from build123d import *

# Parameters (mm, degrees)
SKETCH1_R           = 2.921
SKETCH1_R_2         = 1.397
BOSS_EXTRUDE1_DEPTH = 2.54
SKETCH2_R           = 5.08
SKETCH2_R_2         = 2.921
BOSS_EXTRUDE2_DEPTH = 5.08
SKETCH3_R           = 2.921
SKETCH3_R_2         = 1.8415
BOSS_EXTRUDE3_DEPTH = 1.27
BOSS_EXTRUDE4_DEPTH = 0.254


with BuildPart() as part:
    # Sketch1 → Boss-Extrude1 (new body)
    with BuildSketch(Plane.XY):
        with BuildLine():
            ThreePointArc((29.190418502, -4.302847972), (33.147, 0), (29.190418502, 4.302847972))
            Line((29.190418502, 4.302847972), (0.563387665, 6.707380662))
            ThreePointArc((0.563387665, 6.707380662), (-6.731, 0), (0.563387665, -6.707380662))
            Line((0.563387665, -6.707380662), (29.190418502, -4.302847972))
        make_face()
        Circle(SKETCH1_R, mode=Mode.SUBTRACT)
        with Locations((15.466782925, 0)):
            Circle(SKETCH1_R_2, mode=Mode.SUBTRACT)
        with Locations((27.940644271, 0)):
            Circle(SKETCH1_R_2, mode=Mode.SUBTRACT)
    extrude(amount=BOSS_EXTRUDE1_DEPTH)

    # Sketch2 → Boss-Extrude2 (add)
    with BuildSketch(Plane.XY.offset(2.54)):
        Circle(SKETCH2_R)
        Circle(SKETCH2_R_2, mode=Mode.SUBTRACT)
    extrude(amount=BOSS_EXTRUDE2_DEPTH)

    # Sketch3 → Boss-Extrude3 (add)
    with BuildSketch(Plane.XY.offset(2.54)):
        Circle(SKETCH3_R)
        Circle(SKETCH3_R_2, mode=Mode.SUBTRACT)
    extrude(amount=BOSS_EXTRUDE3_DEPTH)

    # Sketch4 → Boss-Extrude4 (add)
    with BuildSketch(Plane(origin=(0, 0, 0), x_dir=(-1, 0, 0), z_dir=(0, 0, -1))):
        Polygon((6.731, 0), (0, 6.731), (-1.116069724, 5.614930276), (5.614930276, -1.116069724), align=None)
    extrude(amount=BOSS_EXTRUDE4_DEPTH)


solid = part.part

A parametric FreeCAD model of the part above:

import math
import FreeCAD as App
import Part
import Sketcher
Q = App.Units.Quantity

doc = App.newDocument("Part")
body = doc.addObject("PartDesign::Body", "Body")

# Sketch on XY plane
sketch1 = doc.addObject("Sketcher::SketchObject", "Sketch")
body.addObject(sketch1)
sketch1.AttachmentSupport = (doc.XY_Plane, [""])
sketch1.MapMode = "FlatFace"
sketch1.addGeometry(Part.ArcOfCircle(Part.Circle(App.Vector(28.8, 0, 0), App.Vector(0, 0, 1), 4.3), math.radians(-85), math.radians(85)), False)
sketch1.addGeometry(Part.LineSegment(App.Vector(29.2, 4.3, 0), App.Vector(0.6, 6.7, 0)), False)
sketch1.addGeometry(Part.ArcOfCircle(Part.Circle(App.Vector(0, 0, 0), App.Vector(0, 0, 1), 6.7), math.radians(85), math.radians(275)), False)
sketch1.addGeometry(Part.LineSegment(App.Vector(0.6, -6.7, 0), App.Vector(29.2, -4.3, 0)), False)
sketch1.addGeometry(Part.Circle(App.Vector(0, 0, 0), App.Vector(0, 0, 1), 2.9), False)
sketch1.addGeometry(Part.Circle(App.Vector(15.5, 0, 0), App.Vector(0, 0, 1), 1.4), False)
sketch1.addGeometry(Part.Circle(App.Vector(27.9, 0, 0), App.Vector(0, 0, 1), 1.4), False)
sketch1.addConstraint(Sketcher.Constraint("Tangent", 0, 2, 1, 1))
sketch1.addConstraint(Sketcher.Constraint("Tangent", 1, 2, 2, 1))
sketch1.addConstraint(Sketcher.Constraint("Tangent", 2, 2, 3, 1))
sketch1.addConstraint(Sketcher.Constraint("Tangent", 3, 2, 0, 1))
sketch1.addConstraint(Sketcher.Constraint("Coincident", 2, 3, -1, 1))
sketch1.addConstraint(Sketcher.Constraint("Coincident", 4, 3, -1, 1))
sketch1.addConstraint(Sketcher.Constraint("Equal", 5, 6))
sketch1.addConstraint(Sketcher.Constraint("PointOnObject", 0, 3, -1))
sketch1.addConstraint(Sketcher.Constraint("PointOnObject", 5, 3, -1))
sketch1.addConstraint(Sketcher.Constraint("PointOnObject", 6, 3, -1))
sketch1.addConstraint(Sketcher.Constraint("Diameter", 4, Q("0.23 in")))
sketch1.addConstraint(Sketcher.Constraint("Diameter", 5, Q("0.11 in")))
sketch1.addConstraint(Sketcher.Constraint("Radius", 0, Q("0.17 in")))
sketch1.addConstraint(Sketcher.Constraint("Radius", 2, Q("0.265 in")))
sketch1.addConstraint(Sketcher.Constraint("DistanceX", -1, 1, 0, 3, Q("1.135 in")))
sketch1.addConstraint(Sketcher.Constraint("DistanceX", 5, 3, 6, 3, Q("12.473861 mm")))
sketch1.addConstraint(Sketcher.Constraint("DistanceX", -1, 1, 5, 3, Q("15.466783 mm")))
pad1 = doc.addObject("PartDesign::Pad", "Pad")
body.addObject(pad1)
pad1.Profile = sketch1
pad1.Length = Q("0.1 in")

# Sketch on XY plane
sketch2 = doc.addObject("Sketcher::SketchObject", "Sketch001")
body.addObject(sketch2)
sketch2.AttachmentSupport = (doc.XY_Plane, [""])
sketch2.MapMode = "FlatFace"
sketch2.AttachmentOffset = App.Placement(App.Vector(0, 0, 0.1 * 25.4), App.Rotation())
sketch2.addGeometry(Part.Circle(App.Vector(0, 0, 0), App.Vector(0, 0, 1), 5.1), False)
sketch2.addGeometry(Part.Circle(App.Vector(0, 0, 0), App.Vector(0, 0, 1), 2.9), False)
sketch2.addConstraint(Sketcher.Constraint("Coincident", 0, 3, -1, 1))
sketch2.addConstraint(Sketcher.Constraint("Coincident", 1, 3, -1, 1))
sketch2.addConstraint(Sketcher.Constraint("Diameter", 0, Q("0.4 in")))
sketch2.addConstraint(Sketcher.Constraint("Diameter", 1, Q("0.23 in")))
pad2 = doc.addObject("PartDesign::Pad", "Pad001")
body.addObject(pad2)
pad2.Profile = sketch2
pad2.Length = Q("0.2 in")

# Sketch on XY plane
sketch3 = doc.addObject("Sketcher::SketchObject", "Sketch002")
body.addObject(sketch3)
sketch3.AttachmentSupport = (doc.XY_Plane, [""])
sketch3.MapMode = "FlatFace"
sketch3.AttachmentOffset = App.Placement(App.Vector(0, 0, 0.1 * 25.4), App.Rotation())
sketch3.addGeometry(Part.Circle(App.Vector(0, 0, 0), App.Vector(0, 0, 1), 2.9), False)
sketch3.addGeometry(Part.Circle(App.Vector(0, 0, 0), App.Vector(0, 0, 1), 1.8), False)
sketch3.addConstraint(Sketcher.Constraint("Coincident", 0, 3, -1, 1))
sketch3.addConstraint(Sketcher.Constraint("Coincident", 1, 3, -1, 1))
sketch3.addConstraint(Sketcher.Constraint("Diameter", 0, Q("0.23 in")))
sketch3.addConstraint(Sketcher.Constraint("Diameter", 1, Q("0.145 in")))
pad3 = doc.addObject("PartDesign::Pad", "Pad002")
body.addObject(pad3)
pad3.Profile = sketch3
pad3.Length = Q("0.05 in")

# Sketch on XY plane
sketch4 = doc.addObject("Sketcher::SketchObject", "Sketch003")
body.addObject(sketch4)
sketch4.AttachmentSupport = (doc.XY_Plane, [""])
sketch4.MapMode = "FlatFace"
sketch4.addGeometry(Part.LineSegment(App.Vector(-6.7, 0, 0), App.Vector(0, 6.7, 0)), False)
sketch4.addGeometry(Part.LineSegment(App.Vector(0, 6.7, 0), App.Vector(1.1, 5.6, 0)), False)
sketch4.addGeometry(Part.LineSegment(App.Vector(1.1, 5.6, 0), App.Vector(-5.6, -1.1, 0)), False)
sketch4.addGeometry(Part.LineSegment(App.Vector(-5.6, -1.1, 0), App.Vector(-6.7, 0, 0)), False)
sketch4.addConstraint(Sketcher.Constraint("Coincident", 0, 2, 1, 1))
sketch4.addConstraint(Sketcher.Constraint("Coincident", 1, 2, 2, 1))
sketch4.addConstraint(Sketcher.Constraint("Coincident", 2, 2, 3, 1))
sketch4.addConstraint(Sketcher.Constraint("Coincident", 3, 2, 0, 1))
sketch4.addConstraint(Sketcher.Constraint("PointOnObject", 0, 2, -2))
sketch4.addConstraint(Sketcher.Constraint("PointOnObject", 3, 2, -1))
sketch4.addConstraint(Sketcher.Constraint("Perpendicular", 0, 1))
sketch4.addConstraint(Sketcher.Constraint("Perpendicular", 1, 2))
sketch4.addConstraint(Sketcher.Constraint("Perpendicular", 2, 3))
sketch4.addConstraint(Sketcher.Constraint("Angle", 0, Q("45 deg")))
sketch4.addConstraint(Sketcher.Constraint("DistanceY", -1, 1, 0, 2, Q("0.265 in")))
sketch4.addConstraint(Sketcher.Constraint("Distance", 1, Q("1.578361 mm")))
pad4 = doc.addObject("PartDesign::Pad", "Pad003")
body.addObject(pad4)
pad4.Profile = sketch4
pad4.Length = Q("0.01 in")
pad4.Reversed = True

doc.recompute()
